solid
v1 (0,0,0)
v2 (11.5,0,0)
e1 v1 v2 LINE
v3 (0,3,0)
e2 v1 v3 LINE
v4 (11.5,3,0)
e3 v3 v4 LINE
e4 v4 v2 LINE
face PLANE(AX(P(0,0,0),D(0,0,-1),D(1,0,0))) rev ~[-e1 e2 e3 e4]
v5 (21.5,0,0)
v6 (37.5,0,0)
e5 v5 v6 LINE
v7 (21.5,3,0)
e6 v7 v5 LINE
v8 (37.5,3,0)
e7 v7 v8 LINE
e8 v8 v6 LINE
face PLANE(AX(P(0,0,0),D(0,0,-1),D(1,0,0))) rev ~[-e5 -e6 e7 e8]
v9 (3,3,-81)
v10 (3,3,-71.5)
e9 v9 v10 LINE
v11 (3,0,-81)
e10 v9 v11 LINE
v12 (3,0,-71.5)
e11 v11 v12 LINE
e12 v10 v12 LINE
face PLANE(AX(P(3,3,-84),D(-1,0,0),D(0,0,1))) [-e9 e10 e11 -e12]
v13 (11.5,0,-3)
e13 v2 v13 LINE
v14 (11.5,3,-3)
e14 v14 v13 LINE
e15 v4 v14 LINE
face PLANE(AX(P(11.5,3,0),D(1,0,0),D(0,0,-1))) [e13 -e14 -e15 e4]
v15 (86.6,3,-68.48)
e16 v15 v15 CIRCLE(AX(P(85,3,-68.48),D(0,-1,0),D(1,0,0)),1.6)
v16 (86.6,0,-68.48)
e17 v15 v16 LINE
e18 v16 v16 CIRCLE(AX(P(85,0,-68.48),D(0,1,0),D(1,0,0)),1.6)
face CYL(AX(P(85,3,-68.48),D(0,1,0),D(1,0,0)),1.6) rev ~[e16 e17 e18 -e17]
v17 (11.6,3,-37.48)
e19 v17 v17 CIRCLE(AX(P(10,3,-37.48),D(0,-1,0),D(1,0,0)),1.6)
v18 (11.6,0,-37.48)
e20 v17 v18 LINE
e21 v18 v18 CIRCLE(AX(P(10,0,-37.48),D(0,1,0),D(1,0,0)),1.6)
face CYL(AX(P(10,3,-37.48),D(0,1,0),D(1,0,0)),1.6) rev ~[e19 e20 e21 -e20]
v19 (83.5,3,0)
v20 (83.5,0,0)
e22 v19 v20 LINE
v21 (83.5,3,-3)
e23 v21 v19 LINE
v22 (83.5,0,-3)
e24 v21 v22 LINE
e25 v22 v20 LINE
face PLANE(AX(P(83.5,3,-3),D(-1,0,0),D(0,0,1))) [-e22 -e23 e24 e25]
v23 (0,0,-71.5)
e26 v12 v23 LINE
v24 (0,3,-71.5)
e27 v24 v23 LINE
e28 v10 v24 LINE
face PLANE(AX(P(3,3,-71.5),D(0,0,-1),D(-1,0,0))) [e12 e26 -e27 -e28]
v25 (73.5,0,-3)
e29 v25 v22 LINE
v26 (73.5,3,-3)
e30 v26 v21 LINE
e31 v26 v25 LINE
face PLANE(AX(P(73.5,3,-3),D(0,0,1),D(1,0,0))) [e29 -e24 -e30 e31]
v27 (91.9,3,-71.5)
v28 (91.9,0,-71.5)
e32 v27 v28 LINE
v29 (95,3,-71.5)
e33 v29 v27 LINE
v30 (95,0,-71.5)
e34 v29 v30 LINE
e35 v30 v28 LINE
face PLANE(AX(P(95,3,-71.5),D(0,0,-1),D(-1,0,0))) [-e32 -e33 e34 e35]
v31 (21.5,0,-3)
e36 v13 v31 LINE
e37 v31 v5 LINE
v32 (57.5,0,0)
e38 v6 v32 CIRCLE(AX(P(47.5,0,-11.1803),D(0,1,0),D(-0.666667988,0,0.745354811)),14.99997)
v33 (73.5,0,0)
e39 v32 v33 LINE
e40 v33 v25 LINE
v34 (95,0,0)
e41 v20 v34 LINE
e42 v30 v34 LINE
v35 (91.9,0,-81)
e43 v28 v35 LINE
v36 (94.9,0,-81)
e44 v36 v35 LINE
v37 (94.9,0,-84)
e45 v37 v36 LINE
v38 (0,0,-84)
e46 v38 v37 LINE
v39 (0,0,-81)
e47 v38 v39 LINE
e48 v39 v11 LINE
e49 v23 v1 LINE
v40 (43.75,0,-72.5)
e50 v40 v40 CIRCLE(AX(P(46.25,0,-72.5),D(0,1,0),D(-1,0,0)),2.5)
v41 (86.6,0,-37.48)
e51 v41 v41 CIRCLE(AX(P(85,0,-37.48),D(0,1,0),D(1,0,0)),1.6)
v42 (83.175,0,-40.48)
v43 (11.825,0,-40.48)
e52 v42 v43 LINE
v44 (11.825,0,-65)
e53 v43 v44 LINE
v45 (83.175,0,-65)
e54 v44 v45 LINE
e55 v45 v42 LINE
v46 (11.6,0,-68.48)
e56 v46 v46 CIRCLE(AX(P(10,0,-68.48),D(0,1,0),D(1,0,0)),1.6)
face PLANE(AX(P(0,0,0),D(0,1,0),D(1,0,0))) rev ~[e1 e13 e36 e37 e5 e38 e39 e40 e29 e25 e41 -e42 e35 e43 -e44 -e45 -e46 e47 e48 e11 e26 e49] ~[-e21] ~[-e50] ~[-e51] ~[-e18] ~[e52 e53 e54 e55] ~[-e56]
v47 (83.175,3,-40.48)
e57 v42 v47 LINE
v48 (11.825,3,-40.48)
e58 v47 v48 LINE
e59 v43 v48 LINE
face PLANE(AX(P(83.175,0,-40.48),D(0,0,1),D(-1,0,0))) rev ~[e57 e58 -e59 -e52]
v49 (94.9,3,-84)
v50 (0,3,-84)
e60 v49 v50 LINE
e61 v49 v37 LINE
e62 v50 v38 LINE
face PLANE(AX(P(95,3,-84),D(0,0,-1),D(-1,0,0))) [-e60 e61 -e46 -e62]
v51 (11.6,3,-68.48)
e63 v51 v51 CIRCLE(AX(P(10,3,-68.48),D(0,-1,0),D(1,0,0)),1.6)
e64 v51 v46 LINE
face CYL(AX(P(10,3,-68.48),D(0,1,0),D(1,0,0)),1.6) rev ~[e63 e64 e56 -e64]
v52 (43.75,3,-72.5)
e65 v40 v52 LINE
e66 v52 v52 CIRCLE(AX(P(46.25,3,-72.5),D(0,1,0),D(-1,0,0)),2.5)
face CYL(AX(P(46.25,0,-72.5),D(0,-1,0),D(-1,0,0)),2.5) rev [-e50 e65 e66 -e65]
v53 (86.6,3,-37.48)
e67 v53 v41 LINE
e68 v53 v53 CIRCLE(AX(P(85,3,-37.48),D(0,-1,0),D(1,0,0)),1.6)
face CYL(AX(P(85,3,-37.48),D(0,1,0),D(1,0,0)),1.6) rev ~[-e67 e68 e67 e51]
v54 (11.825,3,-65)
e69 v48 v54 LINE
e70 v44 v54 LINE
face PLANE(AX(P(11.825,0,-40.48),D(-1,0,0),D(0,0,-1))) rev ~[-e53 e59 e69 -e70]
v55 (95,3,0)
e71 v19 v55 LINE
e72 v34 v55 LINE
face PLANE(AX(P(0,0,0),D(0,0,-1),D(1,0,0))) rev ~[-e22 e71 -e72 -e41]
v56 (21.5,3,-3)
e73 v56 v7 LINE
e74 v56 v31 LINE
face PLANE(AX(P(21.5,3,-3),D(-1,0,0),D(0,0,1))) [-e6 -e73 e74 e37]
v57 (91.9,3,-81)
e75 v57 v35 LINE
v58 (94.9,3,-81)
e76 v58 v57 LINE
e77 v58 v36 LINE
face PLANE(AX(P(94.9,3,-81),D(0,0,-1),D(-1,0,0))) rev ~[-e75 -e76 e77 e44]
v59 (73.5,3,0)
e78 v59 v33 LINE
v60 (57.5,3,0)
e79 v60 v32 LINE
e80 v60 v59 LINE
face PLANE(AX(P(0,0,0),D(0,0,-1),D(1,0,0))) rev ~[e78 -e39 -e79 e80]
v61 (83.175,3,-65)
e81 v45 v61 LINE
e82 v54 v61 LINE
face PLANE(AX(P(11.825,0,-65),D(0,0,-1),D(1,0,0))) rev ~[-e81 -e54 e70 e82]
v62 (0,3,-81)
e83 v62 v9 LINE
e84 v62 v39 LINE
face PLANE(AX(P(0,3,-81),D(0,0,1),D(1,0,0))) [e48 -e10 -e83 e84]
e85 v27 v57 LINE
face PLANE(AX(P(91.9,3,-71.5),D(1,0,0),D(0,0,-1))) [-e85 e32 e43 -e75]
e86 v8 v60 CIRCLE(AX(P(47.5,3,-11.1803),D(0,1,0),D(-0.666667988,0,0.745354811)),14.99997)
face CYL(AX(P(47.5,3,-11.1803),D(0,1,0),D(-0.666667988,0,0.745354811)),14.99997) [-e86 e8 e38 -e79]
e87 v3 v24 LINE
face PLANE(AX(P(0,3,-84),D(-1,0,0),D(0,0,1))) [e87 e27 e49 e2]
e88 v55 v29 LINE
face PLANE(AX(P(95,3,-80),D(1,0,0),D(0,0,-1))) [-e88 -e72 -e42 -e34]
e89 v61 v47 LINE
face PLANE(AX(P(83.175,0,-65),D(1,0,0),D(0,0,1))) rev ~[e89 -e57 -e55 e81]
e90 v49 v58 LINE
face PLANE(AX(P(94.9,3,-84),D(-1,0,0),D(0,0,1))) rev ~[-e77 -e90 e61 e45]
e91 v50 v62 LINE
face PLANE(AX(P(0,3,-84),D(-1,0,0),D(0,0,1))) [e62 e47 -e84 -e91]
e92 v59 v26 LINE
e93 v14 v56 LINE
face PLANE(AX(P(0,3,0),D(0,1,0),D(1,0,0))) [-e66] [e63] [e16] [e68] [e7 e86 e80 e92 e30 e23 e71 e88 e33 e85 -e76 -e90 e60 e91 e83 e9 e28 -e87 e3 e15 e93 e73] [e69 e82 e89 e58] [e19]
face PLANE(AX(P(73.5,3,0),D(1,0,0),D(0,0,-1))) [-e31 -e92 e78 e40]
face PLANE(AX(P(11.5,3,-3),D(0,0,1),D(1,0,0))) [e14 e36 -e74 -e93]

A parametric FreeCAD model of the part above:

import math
import FreeCAD as App
import Part
import Sketcher

V = App.Vector
Q = App.Units.Quantity


def add_polygon(sketch, points):
    """Adds a closed chain of lines whose ends are joined by coincident constraints."""
    first, n = sketch.GeometryCount, len(points)
    for a, b in zip(points, points[1:] + points[:1]):
        sketch.addGeometry(Part.LineSegment(App.Vector(*a, 0), App.Vector(*b, 0)), False)
    for i in range(n):
        sketch.addConstraint(Sketcher.Constraint("Coincident", first + i, 2, first + (i + 1) % n, 1))

doc = App.newDocument("Part")
params = doc.addObject("Spreadsheet::Sheet", "Params")
for row, (alias, value) in enumerate([
    ("sketch1_diameter", "5 mm"),
    ("sketch1_width", "95 mm"),
    ("sketch1_height", "80 mm"),
    ("sketch1_width2", "71.35 mm"),
    ("sketch1_height2", "24.52 mm"),
    ("pad1_length", "3 mm"),
    ("sketch2_diameter", "3.2 mm"),
    ("pocket1_length", "3 mm"),
    ("sketch3_radius", "15 mm"),
    ("sketch3_width", "20 mm"),
    ("pad2_length", "3 mm"),
    ("sketch4_height", "4 mm"),
    ("sketch4_width", "95 mm"),
    ("pad3_length", "3 mm"),
    ("sketch5_width", "3.1 mm"),
    ("sketch5_height", "12.5 mm"),
    ("pocket2_length", "3 mm"),
    ("sketch6_width", "3 mm"),
    ("sketch6_height", "12.5 mm"),
    ("pocket3_length", "3 mm"),
    ("sketch7_width", "10 mm"),
    ("sketch7_height", "3 mm"),
    ("pocket4_length", "3 mm"),
    ("sketch8_width", "3 mm"),
    ("pad4_length", "3 mm"),
], start=1):
    params.set(f"A{row}", alias)
    params.set(f"B{row}", "=" + value)
    params.setAlias(f"B{row}", alias)

body = doc.addObject("PartDesign::Body", "Body")

# Sketch on XZ plane
sketch1 = doc.addObject("Sketcher::SketchObject", "Sketch")
body.addObject(sketch1)
sketch1.AttachmentSupport = (doc.XZ_Plane, [""])
sketch1.MapMode = "FlatFace"
add_polygon(sketch1, [(0, -80), (0, 0), (95, 0), (95, -80)])  # lines 0-3
sketch1.addGeometry(Part.Circle(V(46.2, -72.5, 0), V(0, 0, 1), 2.5), False)  # 4
add_polygon(sketch1, [(11.8, -40.5), (11.8, -65), (83.2, -65), (83.2, -40.5)])  # lines 5-8
sketch1.addConstraint([
    Sketcher.Constraint("Vertical", 0),
    Sketcher.Constraint("Horizontal", 1),
    Sketcher.Constraint("Vertical", 2),
    Sketcher.Constraint("Horizontal", 3),
    Sketcher.Constraint("Vertical", 5),
    Sketcher.Constraint("Horizontal", 6),
    Sketcher.Constraint("Vertical", 7),
    Sketcher.Constraint("Horizontal", 8),
    Sketcher.Constraint("Coincident", 0, 2, -1, 1),
    Sketcher.Constraint("Diameter", 4, Q("5 mm")),
    Sketcher.Constraint("DistanceX", 1, 1, 1, 2, Q("95 mm")),
    Sketcher.Constraint("DistanceY", 0, 1, 0, 2, Q("80 mm")),
    Sketcher.Constraint("DistanceY", 3, 2, 5, 2, Q("15 mm")),
    Sketcher.Constraint("DistanceX", 6, 1, 6, 2, Q("71.35 mm")),
    Sketcher.Constraint("DistanceY", 5, 2, 5, 1, Q("24.52 mm")),
    Sketcher.Constraint("DistanceY", 2, 2, 4, 3, Q("7.5 mm")),
    Sketcher.Constraint("DistanceX", -1, 1, 5, 2, Q("11.825 mm")),
    Sketcher.Constraint("DistanceX", -1, 1, 4, 3, Q("46.25 mm")),
])
sketch1.setExpression("Constraints[17]", "Params.sketch1_diameter")
sketch1.setExpression("Constraints[18]", "Params.sketch1_width")
sketch1.setExpression("Constraints[19]", "Params.sketch1_height")
sketch1.setExpression("Constraints[21]", "Params.sketch1_width2")
sketch1.setExpression("Constraints[22]", "Params.sketch1_height2")
pad1 = doc.addObject("PartDesign::Pad", "Pad")
body.addObject(pad1)
pad1.Profile = sketch1
pad1.setExpression("Length", "Params.pad1_length")
pad1.Reversed = True

# Sketch on XZ plane
sketch2 = doc.addObject("Sketcher::SketchObject", "Sketch001")
body.addObject(sketch2)
sketch2.AttachmentSupport = (doc.XZ_Plane, [""])
sketch2.MapMode = "FlatFace"
sketch2.AttachmentOffset = App.Placement(V(0, 0, -3), App.Rotation())
sketch2.addGeometry([
    Part.Circle(V(10, -68.5, 0), V(0, 0, 1), 1.6),
    Part.Circle(V(85, -68.5, 0), V(0, 0, 1), 1.6),
    Part.Circle(V(10, -37.5, 0), V(0, 0, 1), 1.6),
    Part.Circle(V(85, -37.5, 0), V(0, 0, 1), 1.6),
], False)
sketch2.addConstraint([
    Sketcher.Constraint("Equal", 0, 1),
    Sketcher.Constraint("Equal", 1, 2),
    Sketcher.Constraint("Equal", 2, 3),
    Sketcher.Constraint("Horizontal", 0, 3, 1, 3),
    Sketcher.Constraint("Horizontal", 2, 3, 3, 3),
    Sketcher.Constraint("Vertical", 0, 3, 2, 3),
    Sketcher.Constraint("Vertical", 1, 3, 3, 3),
    Sketcher.Constraint("Diameter", 0, Q("3.2 mm")),
    Sketcher.Constraint("DistanceX", 0, 3, 1, 3, Q("75 mm")),
    Sketcher.Constraint("DistanceY", 0, 3, 2, 3, Q("31 mm")),
    Sketcher.Constraint("DistanceX", -1, 1, 0, 3, Q("10 mm")),
    Sketcher.Constraint("DistanceY", 0, 3, -1, 1, Q("68.48 mm")),
])
sketch2.setExpression("Constraints[7]", "Params.sketch2_diameter")
pocket1 = doc.addObject("PartDesign::Pocket", "Pocket")
body.addObject(pocket1)
pocket1.Profile = sketch2
pocket1.setExpression("Length", "Params.pocket1_length")
pocket1.Reversed = True

# Sketch on XZ plane
sketch3 = doc.addObject("Sketcher::SketchObject", "Sketch002")
body.addObject(sketch3)
sketch3.AttachmentSupport = (doc.XZ_Plane, [""])
sketch3.MapMode = "FlatFace"
sketch3.AttachmentOffset = App.Placement(V(0, 0, -3), App.Rotation())
sketch3.addGeometry([
    Part.LineSegment(V(58, 0, 0), V(38, 0, 0)),
    Part.ArcOfCircle(Part.Circle(V(48, -11, 0), V(0, 0, 1), 15), math.radians(48), math.radians(132)),
], False)
sketch3.addConstraint([
    Sketcher.Constraint("Coincident", 0, 1, 1, 1),
    Sketcher.Constraint("Coincident", 1, 2, 0, 2),
    Sketcher.Constraint("Horizontal", 0),
    Sketcher.Constraint("PointOnObject", 0, 1, -1),
    Sketcher.Constraint("Radius", 1, Q("15 mm")),
    Sketcher.Constraint("DistanceX", 0, 2, 0, 1, Q("20 mm")),
    Sketcher.Constraint("DistanceX", -1, 1, 1, 2, Q("37.5 mm")),
])
sketch3.setExpression("Constraints[4]", "Params.sketch3_radius")
sketch3.setExpression("Constraints[5]", "Params.sketch3_width")
pad2 = doc.addObject("PartDesign::Pad", "Pad001")
body.addObject(pad2)
pad2.Profile = sketch3
pad2.setExpression("Length", "Params.pad2_length")

# Sketch on XZ plane
sketch4 = doc.addObject("Sketcher::SketchObject", "Sketch003")
body.addObject(sketch4)
sketch4.AttachmentSupport = (doc.XZ_Plane, [""])
sketch4.MapMode = "FlatFace"
sketch4.AttachmentOffset = App.Placement(V(0, 0, -3), App.Rotation())
add_polygon(sketch4, [(0, -84), (0, -80), (95, -80), (95, -84)])  # lines 0-3
sketch4.addConstraint([
    Sketcher.Constraint("Vertical", 0),
    Sketcher.Constraint("Horizontal", 1),
    Sketcher.Constraint("Vertical", 2),
    Sketcher.Constraint("Horizontal", 3),
    Sketcher.Constraint("PointOnObject", 0, 2, -2),
    Sketcher.Constraint("DistanceY", 0, 1, 0, 2, Q("4 mm")),
    Sketcher.Constraint("DistanceX", 1, 1, 1, 2, Q("95 mm")),
    Sketcher.Constraint("DistanceY", 0, 2, -1, 1, Q("80 mm")),
])
sketch4.setExpression("Constraints[9]", "Params.sketch4_height")
sketch4.setExpression("Constraints[10]", "Params.sketch4_width")
pad3 = doc.addObject("PartDesign::Pad", "Pad002")
body.addObject(pad3)
pad3.Profile = sketch4
pad3.setExpression("Length", "Params.pad3_length")

# Sketch on XZ plane
sketch5 = doc.addObject("Sketcher::SketchObject", "Sketch004")
body.addObject(sketch5)
sketch5.AttachmentSupport = (doc.XZ_Plane, [""])
sketch5.MapMode = "FlatFace"
sketch5.AttachmentOffset = App.Placement(V(0, 0, -3), App.Rotation())
add_polygon(sketch5, [(91.9, -71.5), (95, -71.5), (95, -84), (91.9, -84)])  # lines 0-3
sketch5.addConstraint([
    Sketcher.Constraint("Horizontal", 0),
    Sketcher.Constraint("Vertical", 1),
    Sketcher.Constraint("Horizontal", 2),
    Sketcher.Constraint("Vertical", 3),
    Sketcher.Constraint("DistanceX", 0, 1, 0, 2, Q("3.1 mm")),
    Sketcher.Constraint("DistanceY", 1, 2, 1, 1, Q("12.5 mm")),
    Sketcher.Constraint("DistanceX", -1, 1, 0, 2, Q("95 mm")),
    Sketcher.Constraint("DistanceY", 1, 2, -1, 1, Q("84 mm")),
])
sketch5.setExpression("Constraints[8]", "Params.sketch5_width")
sketch5.setExpression("Constraints[9]", "Params.sketch5_height")
pocket2 = doc.addObject("PartDesign::Pocket", "Pocket001")
body.addObject(pocket2)
pocket2.Profile = sketch5
pocket2.setExpression("Length", "Params.pocket2_length")
pocket2.Reversed = True

# Sketch on XZ plane
sketch6 = doc.addObject("Sketcher::SketchObject", "Sketch005")
body.addObject(sketch6)
sketch6.AttachmentSupport = (doc.XZ_Plane, [""])
sketch6.MapMode = "FlatFace"
sketch6.AttachmentOffset = App.Placement(V(0, 0, -3), App.Rotation())
add_polygon(sketch6, [(3, -71.5), (3, -84), (0, -84), (0, -71.5)])  # lines 0-3
sketch6.addConstraint([
    Sketcher.Constraint("Vertical", 0),
    Sketcher.Constraint("Horizontal", 1),
    Sketcher.Constraint("Vertical", 2),
    Sketcher.Constraint("Horizontal", 3),
    Sketcher.Constraint("PointOnObject", 1, 2, -2),
    Sketcher.Constraint("DistanceX", 1, 2, 1, 1, Q("3 mm")),
    Sketcher.Constraint("DistanceY", 0, 2, 0, 1, Q("12.5 mm")),
    Sketcher.Constraint("DistanceY", 0, 2, -1, 1, Q("84 mm")),
])
sketch6.setExpression("Constraints[9]", "Params.sketch6_width")
sketch6.setExpression("Constraints[10]", "Params.sketch6_height")
pocket3 = doc.addObject("PartDesign::Pocket", "Pocket002")
body.addObject(pocket3)
pocket3.Profile = sketch6
pocket3.setExpression("Length", "Params.pocket3_length")
pocket3.Reversed = True

# Sketch on XZ plane
sketch7 = doc.addObject("Sketcher::SketchObject", "Sketch006")
body.addObject(sketch7)
sketch7.AttachmentSupport = (doc.XZ_Plane, [""])
sketch7.MapMode = "FlatFace"
sketch7.AttachmentOffset = App.Placement(V(0, 0, -3), App.Rotation())
add_polygon(sketch7, [(73.5, -3), (73.5, 0), (83.5, 0), (83.5, -3)])  # lines 0-3
add_polygon(sketch7, [(11.5, 0), (21.5, 0), (21.5, -3), (11.5, -3)])  # lines 4-7
sketch7.addConstraint([
    Sketcher.Constraint("Vertical", 0),
    Sketcher.Constraint("Horizontal", 1),
    Sketcher.Constraint("Vertical", 2),
    Sketcher.Constraint("Horizontal", 3),
    Sketcher.Constraint("Horizontal", 4),
    Sketcher.Constraint("Vertical", 5),
    Sketcher.Constraint("Horizontal", 6),
    Sketcher.Constraint("Vertical", 7),
    Sketcher.Constraint("PointOnObject", 0, 2, -1),
    Sketcher.Constraint("PointOnObject", 4, 2, -1),
    Sketcher.Constraint("Horizontal", 3, 2, 5, 2),
    Sketcher.Constraint("Equal", 3, 4),
    Sketcher.Constraint("DistanceX", 1, 1, 1, 2, Q("10 mm")),
    Sketcher.Constraint("DistanceY", 0, 1, 0, 2, Q("3 mm")),
    Sketcher.Constraint("DistanceX", -1, 1, 6, 2, Q("11.5 mm")),
    Sketcher.Constraint("DistanceX", 4, 2, 0, 2, Q("52 mm")),
])
sketch7.setExpression("Constraints[20]", "Params.sketch7_width")
sketch7.setExpression("Constraints[21]", "Params.sketch7_height")
pocket4 = doc.addObject("PartDesign::Pocket", "Pocket003")
body.addObject(pocket4)
pocket4.Profile = sketch7
pocket4.setExpression("Length", "Params.pocket4_length")
pocket4.Reversed = True

# Sketch on XZ plane
sketch8 = doc.addObject("Sketcher::SketchObject", "Sketch007")
body.addObject(sketch8)
sketch8.AttachmentSupport = (doc.XZ_Plane, [""])
sketch8.MapMode = "FlatFace"
sketch8.AttachmentOffset = App.Placement(V(0, 0, -3), App.Rotation())
add_polygon(sketch8, [(91.9, -84), (91.9, -81), (94.9, -81), (94.9, -84)])  # lines 0-3
add_polygon(sketch8, [(0, -81), (3, -81), (3, -84), (0, -84)])  # lines 4-7
sketch8.addConstraint([
    Sketcher.Constraint("Vertical", 0),
    Sketcher.Constraint("Horizontal", 1),
    Sketcher.Constraint("Vertical", 2),
    Sketcher.Constraint("Horizontal", 3),
    Sketcher.Constraint("Horizontal", 4),
    Sketcher.Constraint("Vertical", 5),
    Sketcher.Constraint("Horizontal", 6),
    Sketcher.Constraint("Vertical", 7),
    Sketcher.Constraint("PointOnObject", 6, 2, -2),
    Sketcher.Constraint("Horizontal", 1, 2, 4, 2),
    Sketcher.Constraint("Horizontal", 3, 2, 5, 2),
    Sketcher.Constraint("Equal", 3, 4),
    Sketcher.Constraint("Equal", 6, 0),
    Sketcher.Constraint("DistanceX", 1, 1, 1, 2, Q("3 mm")),
    Sketcher.Constraint("DistanceY", 0, 2, -1, 1, Q("81 mm")),
    Sketcher.Constraint("DistanceX", -1, 1, 0, 2, Q("91.9 mm")),
])
sketch8.setExpression("Constraints[21]", "Params.sketch8_width")
pad4 = doc.addObject("PartDesign::Pad", "Pad003")
body.addObject(pad4)
pad4.Profile = sketch8
pad4.setExpression("Length", "Params.pad4_length")

doc.recompute()
